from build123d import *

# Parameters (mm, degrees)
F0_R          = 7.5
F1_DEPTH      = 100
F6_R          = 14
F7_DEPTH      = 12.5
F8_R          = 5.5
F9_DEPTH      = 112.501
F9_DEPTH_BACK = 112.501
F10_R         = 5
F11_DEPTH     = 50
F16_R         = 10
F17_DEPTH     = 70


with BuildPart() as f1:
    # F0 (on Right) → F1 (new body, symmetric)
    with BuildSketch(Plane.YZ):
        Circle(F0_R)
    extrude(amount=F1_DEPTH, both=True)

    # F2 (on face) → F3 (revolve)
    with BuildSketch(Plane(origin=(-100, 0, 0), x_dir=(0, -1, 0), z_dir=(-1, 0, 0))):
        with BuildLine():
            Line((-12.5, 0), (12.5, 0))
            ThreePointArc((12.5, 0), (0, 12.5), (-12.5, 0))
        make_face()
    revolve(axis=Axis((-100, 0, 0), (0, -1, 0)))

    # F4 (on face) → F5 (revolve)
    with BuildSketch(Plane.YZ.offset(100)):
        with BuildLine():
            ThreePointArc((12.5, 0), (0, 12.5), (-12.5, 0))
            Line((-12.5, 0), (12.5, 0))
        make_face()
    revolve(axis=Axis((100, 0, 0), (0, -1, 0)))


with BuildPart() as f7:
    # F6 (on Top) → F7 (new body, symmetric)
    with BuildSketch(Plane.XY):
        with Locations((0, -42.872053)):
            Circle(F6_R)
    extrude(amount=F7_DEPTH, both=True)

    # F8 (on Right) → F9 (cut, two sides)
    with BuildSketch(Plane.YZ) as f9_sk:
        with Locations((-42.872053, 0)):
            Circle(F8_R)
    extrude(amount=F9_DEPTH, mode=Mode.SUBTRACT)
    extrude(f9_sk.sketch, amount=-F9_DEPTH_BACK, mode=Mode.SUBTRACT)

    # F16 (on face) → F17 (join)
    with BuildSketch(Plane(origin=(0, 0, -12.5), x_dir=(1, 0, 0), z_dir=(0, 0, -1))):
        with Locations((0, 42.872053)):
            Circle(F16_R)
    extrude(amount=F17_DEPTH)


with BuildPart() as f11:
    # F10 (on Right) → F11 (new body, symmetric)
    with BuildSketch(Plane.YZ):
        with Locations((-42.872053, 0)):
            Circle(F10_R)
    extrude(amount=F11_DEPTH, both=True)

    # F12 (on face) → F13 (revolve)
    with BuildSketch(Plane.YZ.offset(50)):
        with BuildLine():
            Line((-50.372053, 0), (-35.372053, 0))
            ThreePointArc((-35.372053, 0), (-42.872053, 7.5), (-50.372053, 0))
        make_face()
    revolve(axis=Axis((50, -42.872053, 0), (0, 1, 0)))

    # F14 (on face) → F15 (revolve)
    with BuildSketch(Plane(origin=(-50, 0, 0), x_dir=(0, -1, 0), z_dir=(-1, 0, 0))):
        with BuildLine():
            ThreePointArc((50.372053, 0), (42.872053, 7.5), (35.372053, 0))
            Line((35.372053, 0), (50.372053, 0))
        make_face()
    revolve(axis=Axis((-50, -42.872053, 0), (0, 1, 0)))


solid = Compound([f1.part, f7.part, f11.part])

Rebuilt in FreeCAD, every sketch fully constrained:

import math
import FreeCAD as App
import Part
import Sketcher

V = App.Vector
Q = App.Units.Quantity

doc = App.newDocument("Part")
body = doc.addObject("PartDesign::Body", "Body")

sketch1 = body.newObject("Sketcher::SketchObject", "Sketch")
sketch1.AttachmentSupport = (doc.getObject("YZ_Plane"), [""])
sketch1.MapMode = "FlatFace"
sketch1.addGeometry(Part.Circle(V(0, 0, 0), V(0, 0, 1), 8), False)
sketch1.addConstraint(Sketcher.Constraint("Coincident", 0, 3, -1, 1))
sketch1.addConstraint(Sketcher.Constraint("Diameter", 0, Q("15 mm")))
pad1 = body.newObject("PartDesign::Pad", "Pad")
pad1.Profile = sketch1
pad1.Length = 200
pad1.Midplane = True

sketch2 = body.newObject("Sketcher::SketchObject", "Sketch001")
sketch2.AttachmentSupport = (doc.getObject("YZ_Plane"), [""])
sketch2.MapMode = "FlatFace"
sketch2.AttachmentOffset = App.Placement(V(0, 0, -100), App.Rotation())
sketch2.addGeometry(Part.LineSegment(V(12, 0, 0), V(-12, 0, 0)), False)
sketch2.addGeometry(Part.ArcOfCircle(Part.Circle(V(0, 0, 0), V(0, 0, 1), 12), math.radians(0), math.radians(180)), False)
sketch2.addConstraint(Sketcher.Constraint("Coincident", 0, 1, 1, 1))
sketch2.addConstraint(Sketcher.Constraint("Coincident", 1, 2, 0, 2))
sketch2.addConstraint(Sketcher.Constraint("Horizontal", 0))
sketch2.addConstraint(Sketcher.Constraint("Coincident", 1, 3, -1, 1))
sketch2.addConstraint(Sketcher.Constraint("PointOnObject", 0, 1, -1))
sketch2.addConstraint(Sketcher.Constraint("Radius", 1, Q("12.5 mm")))
revolution = body.newObject("PartDesign::Revolution", "Revolution")
revolution.Profile = sketch2
revolution.ReferenceAxis = (sketch2, ["H_Axis"])
revolution.Angle = 360

sketch3 = body.newObject("Sketcher::SketchObject", "Sketch002")
sketch3.AttachmentSupport = (doc.getObject("YZ_Plane"), [""])
sketch3.MapMode = "FlatFace"
sketch3.AttachmentOffset = App.Placement(V(0, 0, 100), App.Rotation())
sketch3.addGeometry(Part.ArcOfCircle(Part.Circle(V(0, 0, 0), V(0, 0, 1), 12), math.radians(0), math.radians(180)), False)
sketch3.addGeometry(Part.LineSegment(V(-12, 0, 0), V(12, 0, 0)), False)
sketch3.addConstraint(Sketcher.Constraint("Coincident", 0, 1, 1, 2))
sketch3.addConstraint(Sketcher.Constraint("Coincident", 1, 1, 0, 2))
sketch3.addConstraint(Sketcher.Constraint("Horizontal", 1))
sketch3.addConstraint(Sketcher.Constraint("Coincident", 0, 3, -1, 1))
sketch3.addConstraint(Sketcher.Constraint("PointOnObject", 0, 1, -1))
sketch3.addConstraint(Sketcher.Constraint("Radius", 0, Q("12.5 mm")))
revolution2 = body.newObject("PartDesign::Revolution", "Revolution001")
revolution2.Profile = sketch3
revolution2.ReferenceAxis = (sketch3, ["H_Axis"])
revolution2.Angle = 360
body2 = doc.addObject("PartDesign::Body", "Body001")

sketch4 = body2.newObject("Sketcher::SketchObject", "Sketch003")
sketch4.AttachmentSupport = (doc.getObject("XY_Plane001"), [""])
sketch4.MapMode = "FlatFace"
sketch4.addGeometry(Part.Circle(V(0, -43, 0), V(0, 0, 1), 14), False)
sketch4.addConstraint(Sketcher.Constraint("PointOnObject", 0, 3, -2))
sketch4.addConstraint(Sketcher.Constraint("Diameter", 0, Q("28 mm")))
sketch4.addConstraint(Sketcher.Constraint("DistanceY", 0, 3, -1, 1, Q("42.872053 mm")))
pad2 = body2.newObject("PartDesign::Pad", "Pad001")
pad2.Profile = sketch4
pad2.Length = 25
pad2.Midplane = True

sketch5 = body2.newObject("Sketcher::SketchObject", "Sketch004")
sketch5.AttachmentSupport = (doc.getObject("YZ_Plane001"), [""])
sketch5.MapMode = "FlatFace"
sketch5.addGeometry(Part.Circle(V(-43, 0, 0), V(0, 0, 1), 6), False)
sketch5.addConstraint(Sketcher.Constraint("PointOnObject", 0, 3, -1))
sketch5.addConstraint(Sketcher.Constraint("Diameter", 0, Q("11 mm")))
sketch5.addConstraint(Sketcher.Constraint("DistanceX", 0, 3, -1, 1, Q("42.872053 mm")))
pocket1 = body2.newObject("PartDesign::Pocket", "Pocket")
pocket1.Profile = sketch5
pocket1.Type = "ThroughAll"
pocket1.Midplane = True

sketch6 = body2.newObject("Sketcher::SketchObject", "Sketch005")
sketch6.AttachmentSupport = (doc.getObject("XY_Plane001"), [""])
sketch6.MapMode = "FlatFace"
sketch6.AttachmentOffset = App.Placement(V(0, 0, -12.5), App.Rotation())
sketch6.addGeometry(Part.Circle(V(0, -43, 0), V(0, 0, 1), 10), False)
sketch6.addConstraint(Sketcher.Constraint("PointOnObject", 0, 3, -2))
sketch6.addConstraint(Sketcher.Constraint("Diameter", 0, Q("20 mm")))
sketch6.addConstraint(Sketcher.Constraint("DistanceY", 0, 3, -1, 1, Q("42.872053 mm")))
pad3 = body2.newObject("PartDesign::Pad", "Pad002")
pad3.Profile = sketch6
pad3.Length = 70
pad3.Reversed = True
body3 = doc.addObject("PartDesign::Body", "Body002")

sketch7 = body3.newObject("Sketcher::SketchObject", "Sketch006")
sketch7.AttachmentSupport = (doc.getObject("YZ_Plane002"), [""])
sketch7.MapMode = "FlatFace"
sketch7.addGeometry(Part.Circle(V(-43, 0, 0), V(0, 0, 1), 5), False)
sketch7.addConstraint(Sketcher.Constraint("PointOnObject", 0, 3, -1))
sketch7.addConstraint(Sketcher.Constraint("Diameter", 0, Q("10 mm")))
sketch7.addConstraint(Sketcher.Constraint("DistanceX", 0, 3, -1, 1, Q("42.872053 mm")))
pad4 = body3.newObject("PartDesign::Pad", "Pad003")
pad4.Profile = sketch7
pad4.Length = 100
pad4.Midplane = True

sketch8 = body3.newObject("Sketcher::SketchObject", "Sketch007")
sketch8.AttachmentSupport = (doc.getObject("YZ_Plane002"), [""])
sketch8.MapMode = "FlatFace"
sketch8.AttachmentOffset = App.Placement(V(0, 0, 50), App.Rotation())
sketch8.addGeometry(Part.LineSegment(V(-50, 0, 0), V(-35, 0, 0)), False)
sketch8.addGeometry(Part.ArcOfCircle(Part.Circle(V(-43, 0, 0), V(0, 0, 1), 8), math.radians(0), math.radians(180)), False)
sketch8.addConstraint(Sketcher.Constraint("Coincident", 0, 1, 1, 2))
sketch8.addConstraint(Sketcher.Constraint("Coincident", 1, 1, 0, 2))
sketch8.addConstraint(Sketcher.Constraint("Horizontal", 0))
sketch8.addConstraint(Sketcher.Constraint("PointOnObject", 1, 3, -1))
sketch8.addConstraint(Sketcher.Constraint("PointOnObject", 0, 1, -1))
sketch8.addConstraint(Sketcher.Constraint("Radius", 1, Q("7.5 mm")))
sketch8.addConstraint(Sketcher.Constraint("DistanceX", 1, 3, -1, 1, Q("42.872053 mm")))
revolution3 = body3.newObject("PartDesign::Revolution", "Revolution002")
revolution3.Profile = sketch8
revolution3.ReferenceAxis = (sketch8, ["H_Axis"])
revolution3.Angle = 360

sketch9 = body3.newObject("Sketcher::SketchObject", "Sketch008")
sketch9.AttachmentSupport = (doc.getObject("YZ_Plane002"), [""])
sketch9.MapMode = "FlatFace"
sketch9.AttachmentOffset = App.Placement(V(0, 0, -50), App.Rotation())
sketch9.addGeometry(Part.ArcOfCircle(Part.Circle(V(-43, 0, 0), V(0, 0, 1), 8), math.radians(0), math.radians(180)), False)
sketch9.addGeometry(Part.LineSegment(V(-35, 0, 0), V(-50, 0, 0)), False)
sketch9.addConstraint(Sketcher.Constraint("Coincident", 0, 1, 1, 1))
sketch9.addConstraint(Sketcher.Constraint("Coincident", 1, 2, 0, 2))
sketch9.addConstraint(Sketcher.Constraint("Horizontal", 1))
sketch9.addConstraint(Sketcher.Constraint("PointOnObject", 0, 3, -1))
sketch9.addConstraint(Sketcher.Constraint("PointOnObject", 0, 1, -1))
sketch9.addConstraint(Sketcher.Constraint("Radius", 0, Q("7.5 mm")))
sketch9.addConstraint(Sketcher.Constraint("DistanceX", 0, 3, -1, 1, Q("42.872053 mm")))
revolution4 = body3.newObject("PartDesign::Revolution", "Revolution003")
revolution4.Profile = sketch9
revolution4.ReferenceAxis = (sketch9, ["H_Axis"])
revolution4.Angle = 360

doc.recompute()
